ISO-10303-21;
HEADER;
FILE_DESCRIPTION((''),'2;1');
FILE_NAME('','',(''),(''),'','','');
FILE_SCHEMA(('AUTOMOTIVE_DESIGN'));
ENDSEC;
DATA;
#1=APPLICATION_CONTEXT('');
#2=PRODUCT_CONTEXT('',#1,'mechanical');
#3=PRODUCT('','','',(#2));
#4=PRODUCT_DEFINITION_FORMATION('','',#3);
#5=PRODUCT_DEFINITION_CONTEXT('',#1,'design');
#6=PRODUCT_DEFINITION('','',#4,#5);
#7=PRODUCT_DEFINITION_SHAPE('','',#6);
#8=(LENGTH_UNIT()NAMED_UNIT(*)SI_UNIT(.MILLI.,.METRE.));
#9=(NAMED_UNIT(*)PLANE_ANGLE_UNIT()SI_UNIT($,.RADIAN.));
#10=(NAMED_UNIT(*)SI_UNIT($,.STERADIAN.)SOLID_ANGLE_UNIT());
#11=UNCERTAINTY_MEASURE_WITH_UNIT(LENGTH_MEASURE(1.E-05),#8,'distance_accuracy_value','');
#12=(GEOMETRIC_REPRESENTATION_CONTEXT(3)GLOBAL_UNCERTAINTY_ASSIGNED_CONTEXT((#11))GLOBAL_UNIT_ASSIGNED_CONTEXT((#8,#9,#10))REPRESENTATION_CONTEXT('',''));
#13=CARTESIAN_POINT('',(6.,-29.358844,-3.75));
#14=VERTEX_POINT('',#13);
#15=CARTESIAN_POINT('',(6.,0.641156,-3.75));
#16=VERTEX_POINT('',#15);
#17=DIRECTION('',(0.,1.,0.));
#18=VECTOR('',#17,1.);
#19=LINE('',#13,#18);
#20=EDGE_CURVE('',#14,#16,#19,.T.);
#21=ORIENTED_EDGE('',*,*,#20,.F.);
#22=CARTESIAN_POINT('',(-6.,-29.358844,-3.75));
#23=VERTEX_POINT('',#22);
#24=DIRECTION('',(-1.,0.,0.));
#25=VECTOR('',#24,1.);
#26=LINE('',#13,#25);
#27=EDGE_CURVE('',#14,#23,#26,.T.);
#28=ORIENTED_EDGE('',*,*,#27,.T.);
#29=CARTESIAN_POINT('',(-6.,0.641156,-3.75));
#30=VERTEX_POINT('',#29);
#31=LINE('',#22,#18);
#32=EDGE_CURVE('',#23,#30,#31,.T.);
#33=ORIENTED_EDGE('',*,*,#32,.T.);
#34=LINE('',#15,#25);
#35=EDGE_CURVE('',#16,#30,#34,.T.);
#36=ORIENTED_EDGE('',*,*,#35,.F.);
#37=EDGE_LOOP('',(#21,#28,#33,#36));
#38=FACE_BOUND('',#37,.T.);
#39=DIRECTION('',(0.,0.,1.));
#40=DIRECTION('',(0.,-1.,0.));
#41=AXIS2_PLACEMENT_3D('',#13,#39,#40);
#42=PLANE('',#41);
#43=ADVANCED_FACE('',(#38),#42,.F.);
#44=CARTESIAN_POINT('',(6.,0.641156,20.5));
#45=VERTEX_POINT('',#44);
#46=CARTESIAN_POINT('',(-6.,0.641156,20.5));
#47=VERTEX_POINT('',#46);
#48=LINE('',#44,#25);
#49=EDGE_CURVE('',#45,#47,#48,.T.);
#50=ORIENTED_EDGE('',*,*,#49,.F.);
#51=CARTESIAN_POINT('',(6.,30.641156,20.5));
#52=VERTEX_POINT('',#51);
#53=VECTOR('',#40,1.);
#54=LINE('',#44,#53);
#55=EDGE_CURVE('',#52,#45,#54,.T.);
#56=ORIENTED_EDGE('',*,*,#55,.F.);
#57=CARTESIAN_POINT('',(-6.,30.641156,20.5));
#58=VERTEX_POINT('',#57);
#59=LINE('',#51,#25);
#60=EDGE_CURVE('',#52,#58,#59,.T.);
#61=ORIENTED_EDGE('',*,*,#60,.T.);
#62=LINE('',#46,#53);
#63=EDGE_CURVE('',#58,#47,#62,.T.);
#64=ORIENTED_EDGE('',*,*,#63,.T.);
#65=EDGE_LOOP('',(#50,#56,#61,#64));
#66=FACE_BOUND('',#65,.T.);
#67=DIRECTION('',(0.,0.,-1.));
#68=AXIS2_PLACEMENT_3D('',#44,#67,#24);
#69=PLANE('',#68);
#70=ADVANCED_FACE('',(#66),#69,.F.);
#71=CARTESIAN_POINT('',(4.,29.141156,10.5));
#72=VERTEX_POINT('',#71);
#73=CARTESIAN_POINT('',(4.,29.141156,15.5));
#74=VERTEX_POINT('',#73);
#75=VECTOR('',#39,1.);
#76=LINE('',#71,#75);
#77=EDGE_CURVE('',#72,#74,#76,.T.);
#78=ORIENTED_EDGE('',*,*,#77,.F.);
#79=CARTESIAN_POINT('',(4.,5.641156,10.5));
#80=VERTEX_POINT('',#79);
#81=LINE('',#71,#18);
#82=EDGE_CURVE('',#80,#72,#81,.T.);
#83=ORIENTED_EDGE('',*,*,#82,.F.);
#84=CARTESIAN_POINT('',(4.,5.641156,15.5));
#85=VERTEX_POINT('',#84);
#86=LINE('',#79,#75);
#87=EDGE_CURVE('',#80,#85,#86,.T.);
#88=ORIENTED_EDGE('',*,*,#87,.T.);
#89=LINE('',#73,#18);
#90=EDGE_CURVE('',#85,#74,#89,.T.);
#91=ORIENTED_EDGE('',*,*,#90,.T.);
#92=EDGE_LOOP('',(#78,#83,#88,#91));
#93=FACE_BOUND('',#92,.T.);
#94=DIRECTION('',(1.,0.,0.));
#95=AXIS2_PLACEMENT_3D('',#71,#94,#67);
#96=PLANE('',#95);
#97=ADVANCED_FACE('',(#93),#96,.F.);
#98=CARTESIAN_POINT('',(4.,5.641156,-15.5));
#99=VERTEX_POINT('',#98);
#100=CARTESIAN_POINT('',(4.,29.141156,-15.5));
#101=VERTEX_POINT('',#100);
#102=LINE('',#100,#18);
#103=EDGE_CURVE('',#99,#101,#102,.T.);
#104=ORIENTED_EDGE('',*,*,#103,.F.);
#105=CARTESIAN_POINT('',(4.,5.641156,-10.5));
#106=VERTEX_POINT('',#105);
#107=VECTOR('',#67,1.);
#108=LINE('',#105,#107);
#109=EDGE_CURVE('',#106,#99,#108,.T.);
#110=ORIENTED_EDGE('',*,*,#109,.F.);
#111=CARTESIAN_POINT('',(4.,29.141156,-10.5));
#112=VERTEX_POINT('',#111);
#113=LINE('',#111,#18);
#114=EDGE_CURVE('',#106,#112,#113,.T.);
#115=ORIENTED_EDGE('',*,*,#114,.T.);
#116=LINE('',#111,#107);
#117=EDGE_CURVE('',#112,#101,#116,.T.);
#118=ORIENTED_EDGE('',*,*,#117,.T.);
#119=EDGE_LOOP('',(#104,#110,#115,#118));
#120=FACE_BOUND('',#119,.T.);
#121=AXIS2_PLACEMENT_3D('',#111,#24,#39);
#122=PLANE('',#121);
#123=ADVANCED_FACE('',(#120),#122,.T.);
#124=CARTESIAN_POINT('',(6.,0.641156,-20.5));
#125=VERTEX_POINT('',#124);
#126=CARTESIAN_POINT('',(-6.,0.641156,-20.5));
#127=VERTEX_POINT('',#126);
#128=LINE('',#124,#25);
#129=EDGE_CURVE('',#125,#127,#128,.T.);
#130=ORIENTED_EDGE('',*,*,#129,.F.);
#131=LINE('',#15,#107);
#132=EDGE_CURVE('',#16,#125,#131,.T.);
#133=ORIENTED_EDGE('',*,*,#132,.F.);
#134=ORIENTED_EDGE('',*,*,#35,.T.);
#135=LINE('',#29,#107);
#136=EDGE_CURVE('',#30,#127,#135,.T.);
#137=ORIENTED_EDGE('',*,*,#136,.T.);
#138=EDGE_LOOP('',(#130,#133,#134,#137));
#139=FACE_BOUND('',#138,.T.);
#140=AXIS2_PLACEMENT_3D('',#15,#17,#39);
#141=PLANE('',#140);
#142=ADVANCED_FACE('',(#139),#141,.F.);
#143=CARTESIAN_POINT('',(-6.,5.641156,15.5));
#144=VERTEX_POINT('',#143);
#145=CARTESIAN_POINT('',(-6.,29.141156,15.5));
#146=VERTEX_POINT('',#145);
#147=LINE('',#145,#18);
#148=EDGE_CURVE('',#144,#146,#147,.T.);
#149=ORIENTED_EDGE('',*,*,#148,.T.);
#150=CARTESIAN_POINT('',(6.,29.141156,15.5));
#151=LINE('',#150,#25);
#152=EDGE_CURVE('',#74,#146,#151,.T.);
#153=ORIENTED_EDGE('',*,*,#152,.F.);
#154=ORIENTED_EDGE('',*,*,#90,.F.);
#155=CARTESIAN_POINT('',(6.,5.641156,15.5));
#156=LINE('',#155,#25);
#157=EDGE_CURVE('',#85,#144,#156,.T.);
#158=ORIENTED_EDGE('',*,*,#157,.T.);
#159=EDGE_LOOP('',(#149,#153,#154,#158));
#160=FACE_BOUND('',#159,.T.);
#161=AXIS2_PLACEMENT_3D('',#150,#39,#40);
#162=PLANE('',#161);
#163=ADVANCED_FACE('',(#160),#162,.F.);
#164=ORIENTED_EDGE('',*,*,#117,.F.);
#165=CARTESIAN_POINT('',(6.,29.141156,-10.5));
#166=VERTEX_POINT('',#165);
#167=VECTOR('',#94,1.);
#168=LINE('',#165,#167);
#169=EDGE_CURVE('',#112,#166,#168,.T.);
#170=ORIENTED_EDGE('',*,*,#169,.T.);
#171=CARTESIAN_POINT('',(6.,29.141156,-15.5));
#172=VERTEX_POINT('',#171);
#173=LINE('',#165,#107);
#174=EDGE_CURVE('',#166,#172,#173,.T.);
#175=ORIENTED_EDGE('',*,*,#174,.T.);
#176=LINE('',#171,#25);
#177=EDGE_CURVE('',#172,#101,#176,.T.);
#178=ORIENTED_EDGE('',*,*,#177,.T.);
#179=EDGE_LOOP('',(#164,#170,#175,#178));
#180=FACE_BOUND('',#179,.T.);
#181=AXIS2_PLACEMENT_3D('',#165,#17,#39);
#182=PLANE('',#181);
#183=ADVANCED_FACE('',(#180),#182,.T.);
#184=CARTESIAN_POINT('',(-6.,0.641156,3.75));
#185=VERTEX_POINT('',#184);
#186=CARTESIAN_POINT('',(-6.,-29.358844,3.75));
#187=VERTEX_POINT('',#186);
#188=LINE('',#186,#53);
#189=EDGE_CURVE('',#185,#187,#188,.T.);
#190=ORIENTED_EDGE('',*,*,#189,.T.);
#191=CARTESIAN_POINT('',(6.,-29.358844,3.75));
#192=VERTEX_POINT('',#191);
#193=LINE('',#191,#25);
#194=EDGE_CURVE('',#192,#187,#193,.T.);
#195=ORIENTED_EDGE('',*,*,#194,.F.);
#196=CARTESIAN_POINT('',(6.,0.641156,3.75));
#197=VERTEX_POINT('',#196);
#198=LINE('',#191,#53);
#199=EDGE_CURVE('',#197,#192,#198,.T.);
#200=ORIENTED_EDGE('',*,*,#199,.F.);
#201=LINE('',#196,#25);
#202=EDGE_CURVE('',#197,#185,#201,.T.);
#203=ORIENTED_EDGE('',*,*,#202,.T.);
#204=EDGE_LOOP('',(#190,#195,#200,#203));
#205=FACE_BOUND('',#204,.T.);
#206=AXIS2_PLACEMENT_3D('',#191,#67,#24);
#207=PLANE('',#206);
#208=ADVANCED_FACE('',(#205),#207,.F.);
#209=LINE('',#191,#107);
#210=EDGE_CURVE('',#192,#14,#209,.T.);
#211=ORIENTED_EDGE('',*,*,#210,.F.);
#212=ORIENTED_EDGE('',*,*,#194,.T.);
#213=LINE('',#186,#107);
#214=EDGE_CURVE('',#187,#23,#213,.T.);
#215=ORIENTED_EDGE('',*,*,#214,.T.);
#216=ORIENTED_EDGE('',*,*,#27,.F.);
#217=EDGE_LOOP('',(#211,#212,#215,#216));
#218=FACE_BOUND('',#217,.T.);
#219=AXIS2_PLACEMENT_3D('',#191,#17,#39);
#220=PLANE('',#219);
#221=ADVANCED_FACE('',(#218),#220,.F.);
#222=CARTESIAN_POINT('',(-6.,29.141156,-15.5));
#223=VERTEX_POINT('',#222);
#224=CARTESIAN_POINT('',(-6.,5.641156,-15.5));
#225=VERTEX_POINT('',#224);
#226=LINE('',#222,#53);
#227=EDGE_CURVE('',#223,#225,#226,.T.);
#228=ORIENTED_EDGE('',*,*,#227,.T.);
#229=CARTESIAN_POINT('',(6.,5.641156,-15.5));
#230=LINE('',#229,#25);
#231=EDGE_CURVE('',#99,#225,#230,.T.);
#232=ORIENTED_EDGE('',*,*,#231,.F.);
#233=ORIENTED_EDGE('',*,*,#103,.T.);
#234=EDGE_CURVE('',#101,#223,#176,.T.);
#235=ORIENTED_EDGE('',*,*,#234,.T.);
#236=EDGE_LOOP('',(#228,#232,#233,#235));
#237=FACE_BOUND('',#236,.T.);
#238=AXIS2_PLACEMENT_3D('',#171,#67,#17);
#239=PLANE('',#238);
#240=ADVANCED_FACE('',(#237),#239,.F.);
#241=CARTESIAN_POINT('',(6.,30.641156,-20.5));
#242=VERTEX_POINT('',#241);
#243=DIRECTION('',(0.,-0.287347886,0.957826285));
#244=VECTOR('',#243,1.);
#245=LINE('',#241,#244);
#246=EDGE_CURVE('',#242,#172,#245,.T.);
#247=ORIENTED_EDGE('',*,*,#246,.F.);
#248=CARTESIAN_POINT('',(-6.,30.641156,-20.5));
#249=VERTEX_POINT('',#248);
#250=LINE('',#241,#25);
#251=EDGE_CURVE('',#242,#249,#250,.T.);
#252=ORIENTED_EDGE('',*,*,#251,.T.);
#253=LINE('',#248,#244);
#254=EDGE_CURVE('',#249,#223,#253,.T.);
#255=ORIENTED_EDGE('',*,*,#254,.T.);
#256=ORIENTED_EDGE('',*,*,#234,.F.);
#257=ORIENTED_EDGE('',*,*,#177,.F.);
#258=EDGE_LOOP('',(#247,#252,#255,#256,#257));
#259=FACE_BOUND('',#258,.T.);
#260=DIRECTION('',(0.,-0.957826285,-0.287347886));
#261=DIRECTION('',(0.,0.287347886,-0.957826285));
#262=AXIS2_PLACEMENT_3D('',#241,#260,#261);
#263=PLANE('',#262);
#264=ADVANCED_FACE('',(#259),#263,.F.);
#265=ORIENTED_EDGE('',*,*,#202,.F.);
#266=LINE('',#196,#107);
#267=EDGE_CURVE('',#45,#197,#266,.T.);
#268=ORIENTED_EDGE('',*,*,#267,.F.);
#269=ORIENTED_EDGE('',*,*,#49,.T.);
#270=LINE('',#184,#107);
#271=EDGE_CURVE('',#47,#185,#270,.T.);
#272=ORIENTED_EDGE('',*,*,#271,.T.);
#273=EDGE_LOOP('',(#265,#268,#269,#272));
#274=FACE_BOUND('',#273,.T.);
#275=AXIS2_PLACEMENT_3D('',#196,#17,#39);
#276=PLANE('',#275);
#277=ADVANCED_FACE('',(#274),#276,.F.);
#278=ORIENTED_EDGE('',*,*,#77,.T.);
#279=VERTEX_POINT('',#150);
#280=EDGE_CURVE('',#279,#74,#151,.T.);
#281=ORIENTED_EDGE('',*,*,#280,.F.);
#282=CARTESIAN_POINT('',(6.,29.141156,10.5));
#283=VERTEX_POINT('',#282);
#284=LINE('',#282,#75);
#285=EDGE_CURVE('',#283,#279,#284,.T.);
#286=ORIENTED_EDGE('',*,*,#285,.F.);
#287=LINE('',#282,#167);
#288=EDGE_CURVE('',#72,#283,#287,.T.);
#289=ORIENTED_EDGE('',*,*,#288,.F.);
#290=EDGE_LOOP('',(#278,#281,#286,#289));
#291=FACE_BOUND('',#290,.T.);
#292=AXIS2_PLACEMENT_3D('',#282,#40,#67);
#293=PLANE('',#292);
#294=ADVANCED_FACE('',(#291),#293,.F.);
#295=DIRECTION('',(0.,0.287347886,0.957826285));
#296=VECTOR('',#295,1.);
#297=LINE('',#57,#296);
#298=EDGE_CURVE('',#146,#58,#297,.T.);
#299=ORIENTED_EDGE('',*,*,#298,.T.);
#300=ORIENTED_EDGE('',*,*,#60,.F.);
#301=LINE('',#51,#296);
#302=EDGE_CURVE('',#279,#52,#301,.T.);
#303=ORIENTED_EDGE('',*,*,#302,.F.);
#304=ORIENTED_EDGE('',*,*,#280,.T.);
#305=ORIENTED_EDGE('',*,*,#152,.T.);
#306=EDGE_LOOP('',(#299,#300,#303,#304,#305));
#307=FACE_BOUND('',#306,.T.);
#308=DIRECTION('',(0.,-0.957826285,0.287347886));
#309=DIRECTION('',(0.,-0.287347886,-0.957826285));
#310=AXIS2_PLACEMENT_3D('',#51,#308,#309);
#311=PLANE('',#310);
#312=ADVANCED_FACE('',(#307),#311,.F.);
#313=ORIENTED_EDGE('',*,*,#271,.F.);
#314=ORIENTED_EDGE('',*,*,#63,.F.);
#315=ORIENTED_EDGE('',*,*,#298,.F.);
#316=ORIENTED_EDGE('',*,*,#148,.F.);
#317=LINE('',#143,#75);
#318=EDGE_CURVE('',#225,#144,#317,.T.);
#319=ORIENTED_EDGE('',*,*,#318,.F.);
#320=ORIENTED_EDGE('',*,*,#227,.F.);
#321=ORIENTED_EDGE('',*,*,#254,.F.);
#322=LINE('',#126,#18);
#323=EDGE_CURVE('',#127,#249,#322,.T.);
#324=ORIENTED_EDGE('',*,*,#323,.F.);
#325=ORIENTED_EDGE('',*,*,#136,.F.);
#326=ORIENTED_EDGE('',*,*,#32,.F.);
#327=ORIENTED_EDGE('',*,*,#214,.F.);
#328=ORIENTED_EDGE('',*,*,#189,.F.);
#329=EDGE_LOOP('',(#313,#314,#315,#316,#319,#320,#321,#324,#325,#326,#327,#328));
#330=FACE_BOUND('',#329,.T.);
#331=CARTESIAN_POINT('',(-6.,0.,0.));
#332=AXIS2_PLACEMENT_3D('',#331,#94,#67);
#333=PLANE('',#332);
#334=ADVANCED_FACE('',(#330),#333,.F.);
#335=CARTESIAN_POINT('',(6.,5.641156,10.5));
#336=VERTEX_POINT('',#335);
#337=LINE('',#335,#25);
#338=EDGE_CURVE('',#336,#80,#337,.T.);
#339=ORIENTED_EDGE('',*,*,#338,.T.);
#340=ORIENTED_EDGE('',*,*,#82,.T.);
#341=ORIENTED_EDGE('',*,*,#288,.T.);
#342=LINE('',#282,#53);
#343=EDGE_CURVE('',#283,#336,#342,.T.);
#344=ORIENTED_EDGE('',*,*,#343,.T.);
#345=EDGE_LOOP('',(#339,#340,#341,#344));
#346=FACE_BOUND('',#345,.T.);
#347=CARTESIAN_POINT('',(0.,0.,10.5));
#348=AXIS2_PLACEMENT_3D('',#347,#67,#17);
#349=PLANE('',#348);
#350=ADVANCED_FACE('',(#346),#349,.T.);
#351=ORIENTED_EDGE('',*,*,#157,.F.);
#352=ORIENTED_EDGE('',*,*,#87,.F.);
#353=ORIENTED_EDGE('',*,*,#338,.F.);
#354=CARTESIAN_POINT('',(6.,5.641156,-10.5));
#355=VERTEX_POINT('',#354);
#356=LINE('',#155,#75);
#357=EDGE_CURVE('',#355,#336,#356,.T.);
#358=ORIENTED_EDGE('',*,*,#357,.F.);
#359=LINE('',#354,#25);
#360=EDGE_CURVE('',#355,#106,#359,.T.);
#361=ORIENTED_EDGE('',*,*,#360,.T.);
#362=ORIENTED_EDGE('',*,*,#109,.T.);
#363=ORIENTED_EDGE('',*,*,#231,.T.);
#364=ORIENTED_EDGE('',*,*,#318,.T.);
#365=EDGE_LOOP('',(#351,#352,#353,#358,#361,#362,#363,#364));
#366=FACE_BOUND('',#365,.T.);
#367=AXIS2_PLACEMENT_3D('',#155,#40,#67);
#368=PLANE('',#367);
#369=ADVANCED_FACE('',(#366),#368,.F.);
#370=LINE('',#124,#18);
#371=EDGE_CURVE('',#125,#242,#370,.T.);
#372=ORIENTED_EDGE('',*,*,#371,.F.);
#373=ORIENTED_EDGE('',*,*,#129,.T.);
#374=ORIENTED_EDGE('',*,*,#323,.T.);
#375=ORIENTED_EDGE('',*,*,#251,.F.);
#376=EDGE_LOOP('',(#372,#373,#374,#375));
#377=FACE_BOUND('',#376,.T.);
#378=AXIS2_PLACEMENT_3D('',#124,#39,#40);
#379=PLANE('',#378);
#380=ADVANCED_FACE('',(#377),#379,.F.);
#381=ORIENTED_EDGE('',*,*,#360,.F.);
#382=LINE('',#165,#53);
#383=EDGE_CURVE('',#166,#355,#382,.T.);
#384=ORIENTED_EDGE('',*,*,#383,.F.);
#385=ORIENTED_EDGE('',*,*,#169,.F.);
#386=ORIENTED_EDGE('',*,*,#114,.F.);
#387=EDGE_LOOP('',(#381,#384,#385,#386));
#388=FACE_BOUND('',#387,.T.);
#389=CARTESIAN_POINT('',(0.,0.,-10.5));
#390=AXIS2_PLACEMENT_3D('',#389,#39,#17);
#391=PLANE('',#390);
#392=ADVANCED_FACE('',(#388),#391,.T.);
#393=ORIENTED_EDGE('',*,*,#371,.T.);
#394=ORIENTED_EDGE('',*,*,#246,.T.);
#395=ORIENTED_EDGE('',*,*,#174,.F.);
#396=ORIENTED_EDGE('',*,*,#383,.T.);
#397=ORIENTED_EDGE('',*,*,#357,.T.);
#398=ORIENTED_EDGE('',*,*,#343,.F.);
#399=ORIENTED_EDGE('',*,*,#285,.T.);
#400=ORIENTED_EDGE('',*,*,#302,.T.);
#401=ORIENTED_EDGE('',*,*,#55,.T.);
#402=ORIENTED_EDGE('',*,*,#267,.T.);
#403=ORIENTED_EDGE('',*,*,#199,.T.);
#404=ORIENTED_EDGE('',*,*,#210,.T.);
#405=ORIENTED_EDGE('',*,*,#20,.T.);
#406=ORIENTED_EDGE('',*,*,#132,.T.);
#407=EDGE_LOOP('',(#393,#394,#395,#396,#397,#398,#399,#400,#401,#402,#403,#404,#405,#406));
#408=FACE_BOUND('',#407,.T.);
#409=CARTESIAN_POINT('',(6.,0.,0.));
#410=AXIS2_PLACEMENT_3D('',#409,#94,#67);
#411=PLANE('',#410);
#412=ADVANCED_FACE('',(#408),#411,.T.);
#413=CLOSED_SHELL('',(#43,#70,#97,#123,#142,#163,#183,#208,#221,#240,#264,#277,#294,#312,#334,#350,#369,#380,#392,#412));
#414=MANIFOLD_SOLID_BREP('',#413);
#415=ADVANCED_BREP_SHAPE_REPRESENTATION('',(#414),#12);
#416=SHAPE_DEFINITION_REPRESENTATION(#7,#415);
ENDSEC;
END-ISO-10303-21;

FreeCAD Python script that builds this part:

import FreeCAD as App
import Part
import Sketcher

V = App.Vector
Q = App.Units.Quantity

doc = App.newDocument("Part")
body = doc.addObject("PartDesign::Body", "Body")

# Sketch on YZ plane
sketch1 = body.newObject("Sketcher::SketchObject", "Sketch")
sketch1.AttachmentSupport = (doc.getObject("YZ_Plane"), [""])
sketch1.MapMode = "FlatFace"
sketch1.addGeometry(Part.LineSegment(V(1, 4, 0), V(-29, 4, 0)), False)
sketch1.addGeometry(Part.LineSegment(V(-29, 4, 0), V(-29, -4, 0)), False)
sketch1.addGeometry(Part.LineSegment(V(-29, -4, 0), V(1, -4, 0)), False)
sketch1.addGeometry(Part.LineSegment(V(1, -4, 0), V(1, -20, 0)), False)
sketch1.addGeometry(Part.LineSegment(V(1, -20, 0), V(31, -20, 0)), False)
sketch1.addGeometry(Part.LineSegment(V(31, -20, 0), V(29, -16, 0)), False)
sketch1.addGeometry(Part.LineSegment(V(29, -16, 0), V(6, -16, 0)), False)
sketch1.addGeometry(Part.LineSegment(V(6, -16, 0), V(6, 16, 0)), False)
sketch1.addGeometry(Part.LineSegment(V(6, 16, 0), V(29, 16, 0)), False)
sketch1.addGeometry(Part.LineSegment(V(29, 16, 0), V(31, 20, 0)), False)
sketch1.addGeometry(Part.LineSegment(V(31, 20, 0), V(1, 20, 0)), False)
sketch1.addGeometry(Part.LineSegment(V(1, 20, 0), V(1, 4, 0)), False)
sketch1.addConstraint(Sketcher.Constraint("Coincident", 0, 2, 1, 1))
sketch1.addConstraint(Sketcher.Constraint("Coincident", 1, 2, 2, 1))
sketch1.addConstraint(Sketcher.Constraint("Coincident", 2, 2, 3, 1))
sketch1.addConstraint(Sketcher.Constraint("Coincident", 3, 2, 4, 1))
sketch1.addConstraint(Sketcher.Constraint("Coincident", 4, 2, 5, 1))
sketch1.addConstraint(Sketcher.Constraint("Coincident", 5, 2, 6, 1))
sketch1.addConstraint(Sketcher.Constraint("Coincident", 6, 2, 7, 1))
sketch1.addConstraint(Sketcher.Constraint("Coincident", 7, 2, 8, 1))
sketch1.addConstraint(Sketcher.Constraint("Coincident", 8, 2, 9, 1))
sketch1.addConstraint(Sketcher.Constraint("Coincident", 9, 2, 10, 1))
sketch1.addConstraint(Sketcher.Constraint("Coincident", 10, 2, 11, 1))
sketch1.addConstraint(Sketcher.Constraint("Coincident", 11, 2, 0, 1))
sketch1.addConstraint(Sketcher.Constraint("Horizontal", 0))
sketch1.addConstraint(Sketcher.Constraint("Vertical", 1))
sketch1.addConstraint(Sketcher.Constraint("Horizontal", 2))
sketch1.addConstraint(Sketcher.Constraint("Vertical", 3))
sketch1.addConstraint(Sketcher.Constraint("Horizontal", 4))
sketch1.addConstraint(Sketcher.Constraint("Horizontal", 6))
sketch1.addConstraint(Sketcher.Constraint("Vertical", 7))
sketch1.addConstraint(Sketcher.Constraint("Horizontal", 8))
sketch1.addConstraint(Sketcher.Constraint("Horizontal", 10))
sketch1.addConstraint(Sketcher.Constraint("Vertical", 11))
sketch1.addConstraint(Sketcher.Constraint("Symmetric", 5, 2, 8, 2, -1))
sketch1.addConstraint(Sketcher.Constraint("Symmetric", 4, 2, 9, 2, -1))
sketch1.addConstraint(Sketcher.Constraint("Symmetric", 2, 2, 11, 2, -1))
sketch1.addConstraint(Sketcher.Constraint("Equal", 2, 4))
sketch1.addConstraint(Sketcher.Constraint("DistanceX", 0, 2, 0, 1, Q("30 mm")))
sketch1.addConstraint(Sketcher.Constraint("DistanceY", 7, 1, 7, 2, Q("31 mm")))
sketch1.addConstraint(Sketcher.Constraint("DistanceX", 6, 2, 6, 1, Q("23.5 mm")))
sketch1.addConstraint(Sketcher.Constraint("DistanceY", 1, 2, 1, 1, Q("7.5 mm")))
sketch1.addConstraint(Sketcher.Constraint("DistanceY", 4, 2, 5, 2, Q("5 mm")))
sketch1.addConstraint(Sketcher.Constraint("DistanceX", 3, 2, 6, 2, Q("5 mm")))
sketch1.addConstraint(Sketcher.Constraint("DistanceX", 0, 2, -1, 1, Q("29.358844 mm")))
pad1 = body.newObject("PartDesign::Pad", "Pad")
pad1.Profile = sketch1
pad1.Length = 12
pad1.Midplane = True

# Sketch on XY plane
sketch2 = body.newObject("Sketcher::SketchObject", "Sketch001")
sketch2.AttachmentSupport = (doc.getObject("XY_Plane"), [""])
sketch2.MapMode = "FlatFace"
sketch2.AttachmentOffset = App.Placement(V(0, 0, 15.5), App.Rotation())
sketch2.addGeometry(Part.LineSegment(V(6, 29.1, 0), V(6, 5.6, 0)), False)
sketch2.addGeometry(Part.LineSegment(V(6, 5.6, 0), V(4, 5.6, 0)), False)
sketch2.addGeometry(Part.LineSegment(V(4, 5.6, 0), V(4, 29.1, 0)), False)
sketch2.addGeometry(Part.LineSegment(V(4, 29.1, 0), V(6, 29.1, 0)), False)
sketch2.addConstraint(Sketcher.Constraint("Coincident", 0, 2, 1, 1))
sketch2.addConstraint(Sketcher.Constraint("Coincident", 1, 2, 2, 1))
sketch2.addConstraint(Sketcher.Constraint("Coincident", 2, 2, 3, 1))
sketch2.addConstraint(Sketcher.Constraint("Coincident", 3, 2, 0, 1))
sketch2.addConstraint(Sketcher.Constraint("Vertical", 0))
sketch2.addConstraint(Sketcher.Constraint("Horizontal", 1))
sketch2.addConstraint(Sketcher.Constraint("Vertical", 2))
sketch2.addConstraint(Sketcher.Constraint("Horizontal", 3))
sketch2.addConstraint(Sketcher.Constraint("DistanceX", 1, 2, 1, 1, Q("2 mm")))
sketch2.addConstraint(Sketcher.Constraint("DistanceY", 0, 2, 0, 1, Q("23.5 mm")))
sketch2.addConstraint(Sketcher.Constraint("DistanceX", -1, 1, 0, 2, Q("6 mm")))
sketch2.addConstraint(Sketcher.Constraint("DistanceY", -1, 1, 0, 2, Q("5.641156 mm")))
pad2 = body.newObject("PartDesign::Pad", "Pad001")
pad2.Profile = sketch2
pad2.Length = 5
pad2.Reversed = True
doc.recompute()

mirrored = body.newObject("PartDesign::Mirrored", "Mirrored")
mirrored.Originals = [pad2]
mirrored.MirrorPlane = (doc.getObject("XY_Plane"), [""])
body.Tip = mirrored

doc.recompute()
